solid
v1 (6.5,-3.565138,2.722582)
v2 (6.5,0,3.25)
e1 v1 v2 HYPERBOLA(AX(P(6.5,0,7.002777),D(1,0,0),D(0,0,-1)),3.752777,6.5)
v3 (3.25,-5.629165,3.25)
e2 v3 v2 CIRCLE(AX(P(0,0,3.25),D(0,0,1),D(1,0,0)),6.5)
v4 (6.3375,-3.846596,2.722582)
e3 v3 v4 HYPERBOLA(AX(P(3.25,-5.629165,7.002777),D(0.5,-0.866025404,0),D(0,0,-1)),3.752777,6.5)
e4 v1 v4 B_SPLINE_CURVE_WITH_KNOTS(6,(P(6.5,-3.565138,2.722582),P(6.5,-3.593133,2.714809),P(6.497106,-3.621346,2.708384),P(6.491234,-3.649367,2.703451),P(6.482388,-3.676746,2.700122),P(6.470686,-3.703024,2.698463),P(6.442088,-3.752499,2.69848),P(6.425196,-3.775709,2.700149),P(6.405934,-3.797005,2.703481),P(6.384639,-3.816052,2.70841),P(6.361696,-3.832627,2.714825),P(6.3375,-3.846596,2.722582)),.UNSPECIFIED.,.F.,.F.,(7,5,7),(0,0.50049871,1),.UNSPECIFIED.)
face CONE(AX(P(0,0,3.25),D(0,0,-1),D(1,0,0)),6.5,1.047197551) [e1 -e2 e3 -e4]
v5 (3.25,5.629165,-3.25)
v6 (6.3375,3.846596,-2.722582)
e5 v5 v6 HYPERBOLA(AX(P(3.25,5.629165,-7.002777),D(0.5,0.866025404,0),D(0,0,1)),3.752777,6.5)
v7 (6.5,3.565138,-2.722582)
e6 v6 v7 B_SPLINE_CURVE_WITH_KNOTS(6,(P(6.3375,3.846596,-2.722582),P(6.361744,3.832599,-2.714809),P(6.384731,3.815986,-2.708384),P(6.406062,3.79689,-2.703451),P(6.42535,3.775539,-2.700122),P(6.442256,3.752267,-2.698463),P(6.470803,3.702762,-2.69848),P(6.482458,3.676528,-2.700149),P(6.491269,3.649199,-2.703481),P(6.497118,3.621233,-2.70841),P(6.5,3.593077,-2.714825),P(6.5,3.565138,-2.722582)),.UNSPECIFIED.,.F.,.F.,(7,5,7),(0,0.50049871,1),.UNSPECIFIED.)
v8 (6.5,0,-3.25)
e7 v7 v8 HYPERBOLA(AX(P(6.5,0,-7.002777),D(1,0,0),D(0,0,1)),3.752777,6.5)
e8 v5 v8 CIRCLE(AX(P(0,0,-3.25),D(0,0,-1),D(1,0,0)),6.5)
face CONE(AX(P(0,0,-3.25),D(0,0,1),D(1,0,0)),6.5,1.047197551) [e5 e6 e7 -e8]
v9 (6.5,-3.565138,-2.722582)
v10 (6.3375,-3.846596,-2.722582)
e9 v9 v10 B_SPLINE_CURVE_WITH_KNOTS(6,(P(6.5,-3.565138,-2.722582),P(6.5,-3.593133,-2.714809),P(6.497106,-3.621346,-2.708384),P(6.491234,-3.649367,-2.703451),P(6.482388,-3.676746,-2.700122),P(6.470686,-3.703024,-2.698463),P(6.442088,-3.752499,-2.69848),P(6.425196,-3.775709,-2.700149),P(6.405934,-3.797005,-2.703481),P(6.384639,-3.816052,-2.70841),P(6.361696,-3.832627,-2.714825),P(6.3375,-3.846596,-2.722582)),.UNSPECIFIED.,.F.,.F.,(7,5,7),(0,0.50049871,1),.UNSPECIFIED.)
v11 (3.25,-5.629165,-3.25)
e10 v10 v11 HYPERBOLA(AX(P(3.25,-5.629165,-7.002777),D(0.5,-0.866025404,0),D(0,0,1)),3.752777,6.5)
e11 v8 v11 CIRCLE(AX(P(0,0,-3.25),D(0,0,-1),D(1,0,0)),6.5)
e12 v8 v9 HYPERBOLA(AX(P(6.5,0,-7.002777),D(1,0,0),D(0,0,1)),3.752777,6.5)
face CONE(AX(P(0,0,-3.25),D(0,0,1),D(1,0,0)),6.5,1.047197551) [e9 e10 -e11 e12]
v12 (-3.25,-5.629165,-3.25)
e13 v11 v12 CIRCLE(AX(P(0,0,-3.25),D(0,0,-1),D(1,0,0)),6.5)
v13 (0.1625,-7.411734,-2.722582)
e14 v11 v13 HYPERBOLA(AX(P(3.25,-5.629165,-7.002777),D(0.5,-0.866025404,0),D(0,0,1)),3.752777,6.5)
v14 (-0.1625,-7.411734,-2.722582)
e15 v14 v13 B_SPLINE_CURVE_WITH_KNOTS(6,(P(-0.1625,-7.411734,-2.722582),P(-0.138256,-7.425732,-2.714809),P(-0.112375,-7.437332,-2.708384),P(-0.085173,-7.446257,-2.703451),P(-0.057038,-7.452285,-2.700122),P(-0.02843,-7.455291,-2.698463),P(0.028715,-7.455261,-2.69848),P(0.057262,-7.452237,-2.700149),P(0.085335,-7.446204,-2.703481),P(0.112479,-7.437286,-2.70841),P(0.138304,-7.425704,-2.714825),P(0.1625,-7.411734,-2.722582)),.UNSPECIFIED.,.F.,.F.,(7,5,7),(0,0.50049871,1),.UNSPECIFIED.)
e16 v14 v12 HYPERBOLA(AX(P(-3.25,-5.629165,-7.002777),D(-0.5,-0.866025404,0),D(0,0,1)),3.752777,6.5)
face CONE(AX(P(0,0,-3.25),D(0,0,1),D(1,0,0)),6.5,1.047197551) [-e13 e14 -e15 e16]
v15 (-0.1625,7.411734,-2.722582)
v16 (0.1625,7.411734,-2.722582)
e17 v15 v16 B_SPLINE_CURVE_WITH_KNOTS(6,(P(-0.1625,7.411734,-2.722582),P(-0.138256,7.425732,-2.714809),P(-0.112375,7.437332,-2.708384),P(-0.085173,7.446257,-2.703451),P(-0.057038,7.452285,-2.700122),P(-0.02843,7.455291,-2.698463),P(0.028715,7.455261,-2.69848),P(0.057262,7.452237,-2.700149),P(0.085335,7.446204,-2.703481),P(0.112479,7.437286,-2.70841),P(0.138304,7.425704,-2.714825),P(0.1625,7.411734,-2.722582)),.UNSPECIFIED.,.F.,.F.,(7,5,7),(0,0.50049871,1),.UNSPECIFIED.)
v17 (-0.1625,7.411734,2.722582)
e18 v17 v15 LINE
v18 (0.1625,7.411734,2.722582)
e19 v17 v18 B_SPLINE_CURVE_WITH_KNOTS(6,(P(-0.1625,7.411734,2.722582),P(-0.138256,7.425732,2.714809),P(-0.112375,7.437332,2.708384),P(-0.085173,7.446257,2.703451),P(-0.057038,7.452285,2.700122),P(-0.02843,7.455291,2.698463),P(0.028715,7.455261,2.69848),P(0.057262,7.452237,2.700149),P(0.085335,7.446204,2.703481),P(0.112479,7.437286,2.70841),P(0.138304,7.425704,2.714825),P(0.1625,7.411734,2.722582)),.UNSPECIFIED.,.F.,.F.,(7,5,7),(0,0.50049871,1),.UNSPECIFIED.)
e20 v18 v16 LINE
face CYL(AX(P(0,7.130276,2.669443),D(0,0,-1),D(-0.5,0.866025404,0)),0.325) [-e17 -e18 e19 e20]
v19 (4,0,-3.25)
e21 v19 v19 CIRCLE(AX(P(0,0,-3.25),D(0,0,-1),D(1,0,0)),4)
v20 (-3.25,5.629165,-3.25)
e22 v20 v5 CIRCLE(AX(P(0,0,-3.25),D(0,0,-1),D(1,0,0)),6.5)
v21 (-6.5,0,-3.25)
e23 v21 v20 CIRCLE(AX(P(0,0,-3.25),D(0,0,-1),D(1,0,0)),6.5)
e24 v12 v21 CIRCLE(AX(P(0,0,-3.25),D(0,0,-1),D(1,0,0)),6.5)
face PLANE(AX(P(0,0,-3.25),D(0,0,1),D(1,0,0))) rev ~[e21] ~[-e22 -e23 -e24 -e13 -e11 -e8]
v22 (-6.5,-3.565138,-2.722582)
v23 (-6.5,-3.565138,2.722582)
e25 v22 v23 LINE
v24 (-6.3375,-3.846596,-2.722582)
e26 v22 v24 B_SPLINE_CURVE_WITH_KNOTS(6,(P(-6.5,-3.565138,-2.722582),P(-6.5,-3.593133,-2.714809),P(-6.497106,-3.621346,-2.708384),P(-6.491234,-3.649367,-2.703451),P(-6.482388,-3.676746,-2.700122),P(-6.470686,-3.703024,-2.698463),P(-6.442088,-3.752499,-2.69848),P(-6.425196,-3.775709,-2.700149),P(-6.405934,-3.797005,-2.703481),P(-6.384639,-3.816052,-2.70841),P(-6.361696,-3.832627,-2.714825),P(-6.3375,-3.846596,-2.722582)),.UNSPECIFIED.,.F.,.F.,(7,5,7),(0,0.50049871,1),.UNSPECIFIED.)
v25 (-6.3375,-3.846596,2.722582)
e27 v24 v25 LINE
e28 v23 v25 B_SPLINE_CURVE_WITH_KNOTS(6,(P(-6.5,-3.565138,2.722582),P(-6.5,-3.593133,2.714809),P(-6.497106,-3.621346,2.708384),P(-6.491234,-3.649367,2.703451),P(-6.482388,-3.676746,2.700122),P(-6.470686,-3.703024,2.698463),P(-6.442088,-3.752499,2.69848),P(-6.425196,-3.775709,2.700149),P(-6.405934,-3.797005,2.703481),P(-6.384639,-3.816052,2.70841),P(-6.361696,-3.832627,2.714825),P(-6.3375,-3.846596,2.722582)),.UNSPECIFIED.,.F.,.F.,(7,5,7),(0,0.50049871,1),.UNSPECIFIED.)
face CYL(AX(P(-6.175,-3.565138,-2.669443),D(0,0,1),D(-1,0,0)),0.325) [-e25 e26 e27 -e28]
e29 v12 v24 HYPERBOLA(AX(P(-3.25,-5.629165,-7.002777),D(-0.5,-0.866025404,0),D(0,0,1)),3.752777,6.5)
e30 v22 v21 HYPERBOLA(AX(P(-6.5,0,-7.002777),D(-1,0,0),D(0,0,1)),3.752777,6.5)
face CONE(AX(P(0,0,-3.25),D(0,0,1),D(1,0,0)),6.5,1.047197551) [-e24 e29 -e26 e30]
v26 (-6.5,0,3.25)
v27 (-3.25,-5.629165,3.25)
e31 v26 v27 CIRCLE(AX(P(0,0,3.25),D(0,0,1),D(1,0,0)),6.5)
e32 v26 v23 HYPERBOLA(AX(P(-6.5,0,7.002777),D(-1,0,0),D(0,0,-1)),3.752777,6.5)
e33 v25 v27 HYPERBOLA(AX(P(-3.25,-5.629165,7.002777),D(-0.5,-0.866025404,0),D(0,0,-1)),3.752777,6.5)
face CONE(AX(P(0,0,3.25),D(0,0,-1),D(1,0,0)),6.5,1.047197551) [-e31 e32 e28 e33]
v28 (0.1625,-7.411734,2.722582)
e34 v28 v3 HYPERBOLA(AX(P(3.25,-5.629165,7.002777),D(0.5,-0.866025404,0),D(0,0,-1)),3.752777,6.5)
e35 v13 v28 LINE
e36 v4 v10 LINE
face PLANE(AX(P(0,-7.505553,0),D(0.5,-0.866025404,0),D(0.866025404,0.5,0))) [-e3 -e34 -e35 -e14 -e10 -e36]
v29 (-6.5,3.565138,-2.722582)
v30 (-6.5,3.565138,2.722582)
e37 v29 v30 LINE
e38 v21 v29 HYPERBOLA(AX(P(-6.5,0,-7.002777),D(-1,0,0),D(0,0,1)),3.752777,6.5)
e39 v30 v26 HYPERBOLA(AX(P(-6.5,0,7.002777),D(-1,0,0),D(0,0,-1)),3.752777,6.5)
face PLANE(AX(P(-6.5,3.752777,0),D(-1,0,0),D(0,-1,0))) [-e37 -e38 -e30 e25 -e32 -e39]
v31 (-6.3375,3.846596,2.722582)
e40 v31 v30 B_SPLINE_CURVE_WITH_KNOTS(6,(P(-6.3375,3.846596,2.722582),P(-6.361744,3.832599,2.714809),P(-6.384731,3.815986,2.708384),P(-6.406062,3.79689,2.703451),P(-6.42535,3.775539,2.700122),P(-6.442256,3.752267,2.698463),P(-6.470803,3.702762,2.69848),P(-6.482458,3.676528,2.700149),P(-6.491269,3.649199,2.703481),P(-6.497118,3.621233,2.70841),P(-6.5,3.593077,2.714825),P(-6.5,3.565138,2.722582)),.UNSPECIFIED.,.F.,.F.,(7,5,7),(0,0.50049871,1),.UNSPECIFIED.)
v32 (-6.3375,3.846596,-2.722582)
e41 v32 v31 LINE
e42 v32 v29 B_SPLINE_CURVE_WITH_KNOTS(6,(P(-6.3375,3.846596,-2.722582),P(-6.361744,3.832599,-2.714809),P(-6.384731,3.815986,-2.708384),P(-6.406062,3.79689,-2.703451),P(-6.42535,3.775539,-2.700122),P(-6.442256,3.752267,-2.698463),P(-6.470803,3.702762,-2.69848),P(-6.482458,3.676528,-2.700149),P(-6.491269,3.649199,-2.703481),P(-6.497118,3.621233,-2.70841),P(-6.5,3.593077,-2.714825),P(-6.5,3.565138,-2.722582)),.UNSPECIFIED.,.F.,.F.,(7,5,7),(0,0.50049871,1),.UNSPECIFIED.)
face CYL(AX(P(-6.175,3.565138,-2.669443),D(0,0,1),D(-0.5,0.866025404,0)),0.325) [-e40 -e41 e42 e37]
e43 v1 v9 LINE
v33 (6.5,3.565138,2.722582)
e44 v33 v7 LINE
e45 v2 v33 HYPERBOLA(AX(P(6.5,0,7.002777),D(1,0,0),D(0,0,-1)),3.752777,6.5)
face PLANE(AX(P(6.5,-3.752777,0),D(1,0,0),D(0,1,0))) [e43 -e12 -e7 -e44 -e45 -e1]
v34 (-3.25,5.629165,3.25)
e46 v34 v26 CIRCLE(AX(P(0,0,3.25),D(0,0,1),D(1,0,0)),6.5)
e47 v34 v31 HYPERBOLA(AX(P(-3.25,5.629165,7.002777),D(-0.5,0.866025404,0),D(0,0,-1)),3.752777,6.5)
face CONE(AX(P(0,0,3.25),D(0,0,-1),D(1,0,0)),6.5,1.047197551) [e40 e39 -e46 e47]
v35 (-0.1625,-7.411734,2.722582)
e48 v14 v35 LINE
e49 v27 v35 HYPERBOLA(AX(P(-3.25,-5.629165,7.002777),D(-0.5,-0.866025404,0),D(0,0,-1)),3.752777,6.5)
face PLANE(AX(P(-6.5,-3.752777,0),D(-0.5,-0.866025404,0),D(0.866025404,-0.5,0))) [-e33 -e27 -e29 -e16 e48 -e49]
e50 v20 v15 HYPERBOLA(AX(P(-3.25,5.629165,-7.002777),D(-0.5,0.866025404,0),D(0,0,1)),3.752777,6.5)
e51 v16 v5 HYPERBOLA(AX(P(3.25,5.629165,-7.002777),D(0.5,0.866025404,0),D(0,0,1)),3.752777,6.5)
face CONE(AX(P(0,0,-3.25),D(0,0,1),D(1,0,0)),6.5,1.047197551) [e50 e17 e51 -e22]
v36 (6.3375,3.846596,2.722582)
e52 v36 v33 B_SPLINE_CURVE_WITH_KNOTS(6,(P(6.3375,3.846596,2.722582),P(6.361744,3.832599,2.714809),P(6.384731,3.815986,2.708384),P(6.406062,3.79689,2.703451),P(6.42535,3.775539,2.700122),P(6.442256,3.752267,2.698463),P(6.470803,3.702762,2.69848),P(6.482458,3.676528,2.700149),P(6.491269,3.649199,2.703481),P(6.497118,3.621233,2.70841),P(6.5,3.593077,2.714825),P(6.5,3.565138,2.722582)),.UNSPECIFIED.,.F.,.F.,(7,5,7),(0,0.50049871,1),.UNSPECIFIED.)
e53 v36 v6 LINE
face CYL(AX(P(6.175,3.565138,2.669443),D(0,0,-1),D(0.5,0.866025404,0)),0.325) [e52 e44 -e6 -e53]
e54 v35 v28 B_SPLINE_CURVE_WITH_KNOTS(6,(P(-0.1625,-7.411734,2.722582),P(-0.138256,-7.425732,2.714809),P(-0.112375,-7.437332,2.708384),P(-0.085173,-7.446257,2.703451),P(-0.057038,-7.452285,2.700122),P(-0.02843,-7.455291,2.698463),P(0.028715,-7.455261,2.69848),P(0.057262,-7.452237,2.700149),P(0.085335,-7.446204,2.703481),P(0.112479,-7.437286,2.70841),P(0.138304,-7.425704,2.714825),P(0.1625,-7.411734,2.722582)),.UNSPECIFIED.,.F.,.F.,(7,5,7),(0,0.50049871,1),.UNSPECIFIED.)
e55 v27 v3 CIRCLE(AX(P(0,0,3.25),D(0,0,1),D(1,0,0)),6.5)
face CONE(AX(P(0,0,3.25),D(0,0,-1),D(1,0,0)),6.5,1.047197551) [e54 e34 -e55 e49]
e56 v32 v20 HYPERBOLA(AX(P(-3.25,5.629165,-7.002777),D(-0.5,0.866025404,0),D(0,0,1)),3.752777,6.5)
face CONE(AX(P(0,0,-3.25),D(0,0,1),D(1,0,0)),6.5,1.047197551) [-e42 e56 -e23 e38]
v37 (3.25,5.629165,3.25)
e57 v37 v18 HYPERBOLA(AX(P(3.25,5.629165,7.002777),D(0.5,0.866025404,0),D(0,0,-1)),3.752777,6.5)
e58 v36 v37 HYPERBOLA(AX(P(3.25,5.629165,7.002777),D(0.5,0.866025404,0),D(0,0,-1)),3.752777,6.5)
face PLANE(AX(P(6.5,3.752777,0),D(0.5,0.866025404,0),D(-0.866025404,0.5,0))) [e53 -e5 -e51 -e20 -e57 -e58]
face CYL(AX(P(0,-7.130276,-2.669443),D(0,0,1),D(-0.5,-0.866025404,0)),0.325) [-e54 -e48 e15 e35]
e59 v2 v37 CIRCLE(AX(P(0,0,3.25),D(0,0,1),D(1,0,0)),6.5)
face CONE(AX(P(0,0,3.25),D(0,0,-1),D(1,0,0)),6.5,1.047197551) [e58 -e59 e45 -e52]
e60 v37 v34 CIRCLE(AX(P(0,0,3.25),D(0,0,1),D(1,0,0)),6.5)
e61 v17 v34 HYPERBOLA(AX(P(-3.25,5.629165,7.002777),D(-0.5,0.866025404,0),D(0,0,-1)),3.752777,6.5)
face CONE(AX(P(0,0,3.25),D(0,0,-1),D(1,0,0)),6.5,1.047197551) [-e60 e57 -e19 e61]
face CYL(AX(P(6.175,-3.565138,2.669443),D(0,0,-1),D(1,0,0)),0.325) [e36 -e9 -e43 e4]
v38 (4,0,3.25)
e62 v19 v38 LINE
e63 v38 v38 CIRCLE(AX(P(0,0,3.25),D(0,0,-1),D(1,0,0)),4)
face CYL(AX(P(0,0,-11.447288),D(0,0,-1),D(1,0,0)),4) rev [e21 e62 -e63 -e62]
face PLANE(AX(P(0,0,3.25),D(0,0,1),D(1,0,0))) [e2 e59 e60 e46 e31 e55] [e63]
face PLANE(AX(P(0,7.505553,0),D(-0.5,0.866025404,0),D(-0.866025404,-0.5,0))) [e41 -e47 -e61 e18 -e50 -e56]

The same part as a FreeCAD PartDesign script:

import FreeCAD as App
import Part
import Sketcher

V = App.Vector
Q = App.Units.Quantity


def edges_at(feature, points):
    """Names of the edges that pass closest to the given points."""
    edges = feature.Shape.Edges
    near = lambda p: min(range(len(edges)), key=lambda i: edges[i].distToShape(Part.Vertex(*p))[0])
    return sorted({f"Edge{near(p) + 1}" for p in points})


def faces_at(feature, points):
    """Names of the faces that lie closest to the given points."""
    faces = feature.Shape.Faces
    near = lambda p: min(range(len(faces)), key=lambda i: faces[i].distToShape(Part.Vertex(*p))[0])
    return sorted({f"Face{near(p) + 1}" for p in points})

doc = App.newDocument("Part")
params = doc.addObject("Spreadsheet::Sheet", "Params")
for row, (alias, value) in enumerate([
    ("pad1_length", "6.5 mm"),
    ("sketch2_diameter", "8 mm"),
    ("sketch3_diameter", "13 mm"),
    ("pad2_length", "12.867322 mm"),
    ("draft_angle", "60 deg"),
    ("sketch4_diameter", "13 mm"),
    ("pad3_length", "12.867322 mm"),
    ("draft2_angle", "60 deg"),
    ("fillet_radius", "0.325 mm"),
], start=1):
    params.set(f"A{row}", alias)
    params.set(f"B{row}", "=" + value)
    params.setAlias(f"B{row}", alias)

body = doc.addObject("PartDesign::Body", "Body")

sketch1 = body.newObject("Sketcher::SketchObject", "Sketch")
sketch1.AttachmentSupport = (doc.getObject("XY_Plane"), [""])
sketch1.MapMode = "FlatFace"
sketch1.addGeometry([
    Part.LineSegment(V(0, 8, 0), V(-6, 4, 0)),
    Part.LineSegment(V(-6, 4, 0), V(-6, -4, 0)),
    Part.LineSegment(V(-6, -4, 0), V(0, -8, 0)),
    Part.LineSegment(V(0, -8, 0), V(6, -4, 0)),
    Part.LineSegment(V(6, -4, 0), V(6, 4, 0)),
    Part.LineSegment(V(6, 4, 0), V(0, 8, 0)),
], False)
sketch1.addConstraint([
    Sketcher.Constraint("Coincident", 0, 2, 1, 1),
    Sketcher.Constraint("Coincident", 1, 2, 2, 1),
    Sketcher.Constraint("Coincident", 2, 2, 3, 1),
    Sketcher.Constraint("Coincident", 3, 2, 4, 1),
    Sketcher.Constraint("Coincident", 4, 2, 5, 1),
    Sketcher.Constraint("Coincident", 5, 2, 0, 1),
    Sketcher.Constraint("Vertical", 1),
    Sketcher.Constraint("Vertical", 4),
    Sketcher.Constraint("Symmetric", 0, 2, 3, 2, -1, 1),
    Sketcher.Constraint("Symmetric", 2, 2, 5, 2, -1, 1),
    Sketcher.Constraint("PointOnObject", 2, 2, -2),
    Sketcher.Constraint("Parallel", 2, 5),
    Sketcher.Constraint("Horizontal", 1, 2, 3, 2),
    Sketcher.Constraint("Angle", 0, Q("-150 deg")),
    Sketcher.Constraint("DistanceX", 1, 2, 3, 2, 13.0),
    Sketcher.Constraint("DistanceY", 1, 2, 1, 1, 7.505554),
])
pad1 = body.newObject("PartDesign::Pad", "Pad")
pad1.Profile = sketch1
pad1.setExpression("Length", "Params.pad1_length")
pad1.Midplane = True

sketch2 = body.newObject("Sketcher::SketchObject", "Sketch001")
sketch2.AttachmentSupport = (doc.getObject("XY_Plane"), [""])
sketch2.MapMode = "FlatFace"
sketch2.addGeometry(Part.Circle(V(0, 0, 0), V(0, 0, 1), 4), False)
sketch2.addConstraint([
    Sketcher.Constraint("Coincident", 0, 3, -1, 1),
    Sketcher.Constraint("Diameter", 0, 8.0),
])
sketch2.setExpression("Constraints[1]", "Params.sketch2_diameter")
pocket1 = body.newObject("PartDesign::Pocket", "Pocket")
pocket1.Profile = sketch2
pocket1.Type = "ThroughAll"
pocket1.Midplane = True
body2 = doc.addObject("PartDesign::Body", "Body001")

sketch3 = body2.newObject("Sketcher::SketchObject", "Sketch002")
sketch3.AttachmentSupport = (doc.getObject("XY_Plane001"), [""])
sketch3.MapMode = "FlatFace"
sketch3.AttachmentOffset = App.Placement(V(0, 0, 3.25), App.Rotation())
sketch3.addGeometry([
    Part.LineSegment(V(-32, 33, 0), V(-32, -33, 0)),
    Part.LineSegment(V(-32, -33, 0), V(32, -33, 0)),
    Part.LineSegment(V(32, -33, 0), V(32, 33, 0)),
    Part.LineSegment(V(32, 33, 0), V(-32, 33, 0)),
    Part.Circle(V(0, 0, 0), V(0, 0, 1), 6),
], False)
sketch3.addConstraint([
    Sketcher.Constraint("Coincident", 0, 2, 1, 1),
    Sketcher.Constraint("Coincident", 1, 2, 2, 1),
    Sketcher.Constraint("Coincident", 2, 2, 3, 1),
    Sketcher.Constraint("Coincident", 3, 2, 0, 1),
    Sketcher.Constraint("Vertical", 0),
    Sketcher.Constraint("Horizontal", 1),
    Sketcher.Constraint("Vertical", 2),
    Sketcher.Constraint("Horizontal", 3),
    Sketcher.Constraint("Coincident", 4, 3, -1, 1),
    Sketcher.Constraint("Symmetric", 0, 2, 2, 2, -1, 1),
    Sketcher.Constraint("Diameter", 4, 13.0),
    Sketcher.Constraint("DistanceX", 1, 1, 1, 2, 63.752),
    Sketcher.Constraint("DistanceY", 0, 2, 0, 1, 65.764),
])
sketch3.setExpression("Constraints[10]", "Params.sketch3_diameter")
pad2 = body2.newObject("PartDesign::Pad", "Pad001")
pad2.Profile = sketch3
pad2.setExpression("Length", "Params.pad2_length")
pad2.Reversed = True
doc.recompute()

datumplane = body2.newObject("PartDesign::Plane", "DatumPlane")
datumplane.AttachmentSupport = (doc.getObject("XY_Plane001"), [""])
datumplane.MapMode = "FlatFace"
datumplane.AttachmentOffset = App.Placement(V(0, 0, 3.25), App.Rotation())
draft = body2.newObject("PartDesign::Draft", "Draft")
draft.Base = (pad2, faces_at(pad2, [
    (0, -32.882, -3.184),
    (31.876, 0, -3.184),
    (0, 32.882, -3.184),
    (-31.876, 0, -3.184),
    (-6.5, 0, -3.184),
]))
draft.NeutralPlane = (datumplane, [""])
draft.setExpression("Angle", "Params.draft_angle")
draft.Reversed = True
doc.recompute()

boolean = body.newObject("PartDesign::Boolean", "Boolean")
boolean.Type = "Cut"
boolean.addObjects([body2])
body3 = doc.addObject("PartDesign::Body", "Body002")

sketch4 = body3.newObject("Sketcher::SketchObject", "Sketch003")
sketch4.AttachmentSupport = (doc.getObject("XY_Plane002"), [""])
sketch4.MapMode = "FlatFace"
sketch4.AttachmentOffset = App.Placement(V(0, 0, -3.25), App.Rotation())
sketch4.addGeometry([
    Part.LineSegment(V(-32, -33, 0), V(-32, 33, 0)),
    Part.LineSegment(V(-32, 33, 0), V(32, 33, 0)),
    Part.LineSegment(V(32, 33, 0), V(32, -33, 0)),
    Part.LineSegment(V(32, -33, 0), V(-32, -33, 0)),
    Part.Circle(V(0, 0, 0), V(0, 0, 1), 6),
], False)
sketch4.addConstraint([
    Sketcher.Constraint("Coincident", 0, 2, 1, 1),
    Sketcher.Constraint("Coincident", 1, 2, 2, 1),
    Sketcher.Constraint("Coincident", 2, 2, 3, 1),
    Sketcher.Constraint("Coincident", 3, 2, 0, 1),
    Sketcher.Constraint("Vertical", 0),
    Sketcher.Constraint("Horizontal", 1),
    Sketcher.Constraint("Vertical", 2),
    Sketcher.Constraint("Horizontal", 3),
    Sketcher.Constraint("Coincident", 4, 3, -1, 1),
    Sketcher.Constraint("Symmetric", 0, 2, 2, 2, -1, 1),
    Sketcher.Constraint("Diameter", 4, 13.0),
    Sketcher.Constraint("DistanceX", 1, 1, 1, 2, 63.752),
    Sketcher.Constraint("DistanceY", 0, 1, 0, 2, 65.764),
])
sketch4.setExpression("Constraints[10]", "Params.sketch4_diameter")
pad3 = body3.newObject("PartDesign::Pad", "Pad002")
pad3.Profile = sketch4
pad3.setExpression("Length", "Params.pad3_length")
doc.recompute()

datumplane2 = body3.newObject("PartDesign::Plane", "DatumPlane001")
datumplane2.AttachmentSupport = (doc.getObject("XY_Plane002"), [""])
datumplane2.MapMode = "FlatFace"
datumplane2.AttachmentOffset = App.Placement(V(0, 0, -3.25), App.Rotation())
draft2 = body3.newObject("PartDesign::Draft", "Draft001")
draft2.Base = (pad3, faces_at(pad3, [
    (0, -32.882, 3.184),
    (31.876, 0, 3.184),
    (0, 32.882, 3.184),
    (-31.876, 0, 3.184),
    (-6.5, 0, 3.184),
]))
draft2.NeutralPlane = (datumplane2, [""])
draft2.setExpression("Angle", "Params.draft2_angle")
draft2.Reversed = False
doc.recompute()

boolean2 = body.newObject("PartDesign::Boolean", "Boolean001")
boolean2.Type = "Cut"
boolean2.addObjects([body3])
doc.recompute()

fillet = body.newObject("PartDesign::Fillet", "Fillet")
fillet.Base = (boolean2, edges_at(boolean2, [
    (-6.5, 3.753, 0),
    (-6.5, -3.753, 0),
    (0, -7.506, 0),
    (6.5, -3.753, 0),
    (6.5, 3.753, 0),
    (0, 7.506, 0),
]))
fillet.setExpression("Radius", "Params.fillet_radius")

doc.recompute()
